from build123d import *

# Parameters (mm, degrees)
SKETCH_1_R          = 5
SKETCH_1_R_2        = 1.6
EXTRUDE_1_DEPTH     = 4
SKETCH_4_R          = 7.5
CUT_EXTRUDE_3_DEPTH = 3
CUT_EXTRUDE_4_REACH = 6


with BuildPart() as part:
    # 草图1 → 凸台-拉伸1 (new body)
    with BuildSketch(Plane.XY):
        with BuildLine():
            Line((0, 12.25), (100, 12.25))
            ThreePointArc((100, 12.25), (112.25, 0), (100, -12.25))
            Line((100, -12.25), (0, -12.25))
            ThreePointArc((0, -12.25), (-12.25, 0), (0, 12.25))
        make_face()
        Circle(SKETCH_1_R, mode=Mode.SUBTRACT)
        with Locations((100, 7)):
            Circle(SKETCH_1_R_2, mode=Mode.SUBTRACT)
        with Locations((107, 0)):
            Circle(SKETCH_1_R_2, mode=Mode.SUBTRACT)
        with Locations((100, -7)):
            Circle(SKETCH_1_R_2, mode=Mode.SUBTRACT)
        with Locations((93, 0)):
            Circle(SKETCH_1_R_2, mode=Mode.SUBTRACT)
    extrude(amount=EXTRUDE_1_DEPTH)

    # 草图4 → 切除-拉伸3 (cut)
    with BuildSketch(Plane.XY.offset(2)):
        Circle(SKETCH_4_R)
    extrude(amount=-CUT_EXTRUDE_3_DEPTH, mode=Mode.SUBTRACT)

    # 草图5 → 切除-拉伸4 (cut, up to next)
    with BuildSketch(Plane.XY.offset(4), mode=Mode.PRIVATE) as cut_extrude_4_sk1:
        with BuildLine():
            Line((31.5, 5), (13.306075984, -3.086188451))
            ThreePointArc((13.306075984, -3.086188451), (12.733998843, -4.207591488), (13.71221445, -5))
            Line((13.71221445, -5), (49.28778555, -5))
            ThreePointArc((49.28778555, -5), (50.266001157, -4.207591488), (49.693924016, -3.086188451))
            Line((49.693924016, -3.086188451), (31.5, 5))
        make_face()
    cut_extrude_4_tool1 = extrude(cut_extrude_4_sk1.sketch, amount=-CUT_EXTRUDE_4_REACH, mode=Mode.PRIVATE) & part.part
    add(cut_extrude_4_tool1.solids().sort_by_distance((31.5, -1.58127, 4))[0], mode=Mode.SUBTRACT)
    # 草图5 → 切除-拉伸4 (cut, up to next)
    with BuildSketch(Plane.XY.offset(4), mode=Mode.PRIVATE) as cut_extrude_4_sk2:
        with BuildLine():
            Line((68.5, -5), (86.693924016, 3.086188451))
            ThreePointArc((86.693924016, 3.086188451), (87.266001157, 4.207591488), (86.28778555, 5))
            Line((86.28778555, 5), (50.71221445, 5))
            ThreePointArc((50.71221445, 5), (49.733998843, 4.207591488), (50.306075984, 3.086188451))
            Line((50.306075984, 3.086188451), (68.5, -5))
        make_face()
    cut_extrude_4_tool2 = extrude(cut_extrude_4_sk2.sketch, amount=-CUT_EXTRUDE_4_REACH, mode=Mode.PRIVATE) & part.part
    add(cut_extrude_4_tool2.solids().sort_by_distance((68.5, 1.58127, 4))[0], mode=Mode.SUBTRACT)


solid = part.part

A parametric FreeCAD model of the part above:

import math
import FreeCAD as App
import Part
import Sketcher
from FreeCAD import Vector

doc = App.newDocument("Part")
params = doc.addObject("Spreadsheet::Sheet", "Params")
for row, (alias, value) in enumerate([
    ("sketch1_diameter", "10 mm"),
    ("sketch1_diameter2", "3.2 mm"),
    ("sketch1_width", "100 mm"),
    ("sketch1_radius", "12.25 mm"),
    ("pad1_length", "4 mm"),
    ("sketch2_diameter", "15 mm"),
    ("pocket1_length", "3 mm"),
    ("sketch3_radius", "1 mm"),
    ("sketch4_radius", "1 mm"),
], start=1):
    params.set(f"A{row}", alias)
    params.set(f"B{row}", "=" + value)
    params.setAlias(f"B{row}", alias)

body = doc.addObject("PartDesign::Body", "Body")

sketch1 = doc.addObject("Sketcher::SketchObject", "Sketch")
body.addObject(sketch1)
sketch1.AttachmentSupport = (doc.XY_Plane, [""])
sketch1.MapMode = "FlatFace"
sketch1.addGeometry(Part.LineSegment(Vector(100, 12.25, 0), Vector(0, 12.25, 0)), False)
sketch1.addGeometry(Part.ArcOfCircle(Part.Circle(Vector(0, 0, 0), Vector(0, 0, 1), 12.25), math.radians(90), math.radians(270)), False)
sketch1.addGeometry(Part.LineSegment(Vector(0, -12.25, 0), Vector(100, -12.25, 0)), False)
sketch1.addGeometry(Part.ArcOfCircle(Part.Circle(Vector(100, 0, 0), Vector(0, 0, 1), 12.25), math.radians(-90), math.radians(90)), False)
sketch1.addGeometry(Part.Circle(Vector(100, -7, 0), Vector(0, 0, 1), 1.6), False)
sketch1.addGeometry(Part.Circle(Vector(107, 0, 0), Vector(0, 0, 1), 1.6), False)
sketch1.addGeometry(Part.Circle(Vector(93, 0, 0), Vector(0, 0, 1), 1.6), False)
sketch1.addGeometry(Part.Circle(Vector(100, 7, 0), Vector(0, 0, 1), 1.6), False)
sketch1.addGeometry(Part.Circle(Vector(0, 0, 0), Vector(0, 0, 1), 5), False)
sketch1.addConstraint(Sketcher.Constraint("Tangent", 0, 2, 1, 1))
sketch1.addConstraint(Sketcher.Constraint("Tangent", 1, 2, 2, 1))
sketch1.addConstraint(Sketcher.Constraint("Tangent", 2, 2, 3, 1))
sketch1.addConstraint(Sketcher.Constraint("Tangent", 3, 2, 0, 1))
sketch1.addConstraint(Sketcher.Constraint("Horizontal", 0))
sketch1.addConstraint(Sketcher.Constraint("Horizontal", 2))
sketch1.addConstraint(Sketcher.Constraint("Coincident", 1, 3, -1, 1))
sketch1.addConstraint(Sketcher.Constraint("Coincident", 8, 3, -1, 1))
sketch1.addConstraint(Sketcher.Constraint("Equal", 4, 5))
sketch1.addConstraint(Sketcher.Constraint("Equal", 5, 6))
sketch1.addConstraint(Sketcher.Constraint("Equal", 6, 7))
sketch1.addConstraint(Sketcher.Constraint("Symmetric", 4, 3, 7, 3, -1))
sketch1.addConstraint(Sketcher.Constraint("PointOnObject", 5, 3, -1))
sketch1.addConstraint(Sketcher.Constraint("PointOnObject", 6, 3, -1))
sketch1.addConstraint(Sketcher.Constraint("Vertical", 3, 3, 4, 3))
sketch1.addConstraint(Sketcher.Constraint("Diameter", 8, 10.0))
sketch1.addConstraint(Sketcher.Constraint("Diameter", 4, 3.2))
sketch1.addConstraint(Sketcher.Constraint("DistanceX", 0, 2, 0, 1, 100.0))
sketch1.addConstraint(Sketcher.Constraint("Radius", 1, 12.25))
sketch1.addConstraint(Sketcher.Constraint("DistanceY", 4, 3, -1, 1, 7.0))
sketch1.addConstraint(Sketcher.Constraint("DistanceX", -1, 1, 5, 3, 107.0))
sketch1.addConstraint(Sketcher.Constraint("DistanceX", -1, 1, 6, 3, 93.0))
sketch1.setExpression("Constraints[15]", "Params.sketch1_diameter")
sketch1.setExpression("Constraints[16]", "Params.sketch1_diameter2")
sketch1.setExpression("Constraints[17]", "Params.sketch1_width")
sketch1.setExpression("Constraints[18]", "Params.sketch1_radius")
pad1 = doc.addObject("PartDesign::Pad", "Pad")
body.addObject(pad1)
pad1.Profile = sketch1
pad1.setExpression("Length", "Params.pad1_length")

sketch2 = doc.addObject("Sketcher::SketchObject", "Sketch001")
body.addObject(sketch2)
sketch2.AttachmentSupport = (doc.XY_Plane, [""])
sketch2.MapMode = "FlatFace"
sketch2.AttachmentOffset = App.Placement(Vector(0, 0, 2), App.Rotation())
sketch2.addGeometry(Part.Circle(Vector(0, 0, 0), Vector(0, 0, 1), 7.5), False)
sketch2.addConstraint(Sketcher.Constraint("Coincident", 0, 3, -1, 1))
sketch2.addConstraint(Sketcher.Constraint("Diameter", 0, 15.0))
sketch2.setExpression("Constraints[1]", "Params.sketch2_diameter")
pocket1 = doc.addObject("PartDesign::Pocket", "Pocket")
body.addObject(pocket1)
pocket1.Profile = sketch2
pocket1.setExpression("Length", "Params.pocket1_length")

sketch3 = doc.addObject("Sketcher::SketchObject", "Sketch002")
body.addObject(sketch3)
sketch3.AttachmentSupport = (doc.XY_Plane, [""])
sketch3.MapMode = "FlatFace"
sketch3.AttachmentOffset = App.Placement(Vector(0, 0, 4), App.Rotation())
sketch3.addGeometry(Part.LineSegment(Vector(31.5, 5, 0), Vector(13.306076, -3.086188, 0)), False)
sketch3.addGeometry(Part.ArcOfCircle(Part.Circle(Vector(13.712214, -4, 0), Vector(0, 0, 1), 1), math.radians(113.962489), math.radians(270)), False)
sketch3.addGeometry(Part.LineSegment(Vector(13.712214, -5, 0), Vector(49.287786, -5, 0)), False)
sketch3.addGeometry(Part.ArcOfCircle(Part.Circle(Vector(49.287786, -4, 0), Vector(0, 0, 1), 1), math.radians(-90), math.radians(66.037511)), False)
sketch3.addGeometry(Part.LineSegment(Vector(49.693924, -3.086188, 0), Vector(31.5, 5, 0)), False)
sketch3.addConstraint(Sketcher.Constraint("Tangent", 0, 2, 1, 1))
sketch3.addConstraint(Sketcher.Constraint("Tangent", 1, 2, 2, 1))
sketch3.addConstraint(Sketcher.Constraint("Tangent", 2, 2, 3, 1))
sketch3.addConstraint(Sketcher.Constraint("Tangent", 3, 2, 4, 1))
sketch3.addConstraint(Sketcher.Constraint("Coincident", 4, 2, 0, 1))
sketch3.addConstraint(Sketcher.Constraint("Horizontal", 2))
sketch3.addConstraint(Sketcher.Constraint("Equal", 1, 3))
sketch3.addConstraint(Sketcher.Constraint("Horizontal", 0, 2, 3, 2))
sketch3.addConstraint(Sketcher.Constraint("Radius", 1, 1.0))
sketch3.addConstraint(Sketcher.Constraint("DistanceY", 1, 3, -1, 1, 4.0))
sketch3.addConstraint(Sketcher.Constraint("DistanceY", -1, 1, 4, 2, 5.0))
sketch3.addConstraint(Sketcher.Constraint("DistanceX", -1, 1, 4, 2, 31.5))
sketch3.addConstraint(Sketcher.Constraint("DistanceX", 2, 1, 2, 2, 35.575571))
sketch3.setExpression("Constraints[8]", "Params.sketch3_radius")
pocket2 = doc.addObject("PartDesign::Pocket", "Pocket001")
body.addObject(pocket2)
pocket2.Profile = sketch3
pocket2.Type = "UpToFirst"

sketch4 = doc.addObject("Sketcher::SketchObject", "Sketch003")
body.addObject(sketch4)
sketch4.AttachmentSupport = (doc.XY_Plane, [""])
sketch4.MapMode = "FlatFace"
sketch4.AttachmentOffset = App.Placement(Vector(0, 0, 4), App.Rotation())
sketch4.addGeometry(Part.LineSegment(Vector(68.5, -5, 0), Vector(86.693924, 3.086188, 0)), False)
sketch4.addGeometry(Part.ArcOfCircle(Part.Circle(Vector(86.287786, 4, 0), Vector(0, 0, 1), 1), math.radians(-66.037511), math.radians(90)), False)
sketch4.addGeometry(Part.LineSegment(Vector(86.287786, 5, 0), Vector(50.712214, 5, 0)), False)
sketch4.addGeometry(Part.ArcOfCircle(Part.Circle(Vector(50.712214, 4, 0), Vector(0, 0, 1), 1), math.radians(90), math.radians(246.037511)), False)
sketch4.addGeometry(Part.LineSegment(Vector(50.306076, 3.086188, 0), Vector(68.5, -5, 0)), False)
sketch4.addConstraint(Sketcher.Constraint("Tangent", 0, 2, 1, 1))
sketch4.addConstraint(Sketcher.Constraint("Tangent", 1, 2, 2, 1))
sketch4.addConstraint(Sketcher.Constraint("Tangent", 2, 2, 3, 1))
sketch4.addConstraint(Sketcher.Constraint("Tangent", 3, 2, 4, 1))
sketch4.addConstraint(Sketcher.Constraint("Coincident", 4, 2, 0, 1))
sketch4.addConstraint(Sketcher.Constraint("Horizontal", 2))
sketch4.addConstraint(Sketcher.Constraint("Equal", 1, 3))
sketch4.addConstraint(Sketcher.Constraint("Horizontal", 0, 2, 3, 2))
sketch4.addConstraint(Sketcher.Constraint("Radius", 1, 1.0))
sketch4.addConstraint(Sketcher.Constraint("DistanceY", -1, 1, 1, 3, 4.0))
sketch4.addConstraint(Sketcher.Constraint("DistanceY", 4, 2, -1, 1, 5.0))
sketch4.addConstraint(Sketcher.Constraint("DistanceX", -1, 1, 4, 2, 68.5))
sketch4.addConstraint(Sketcher.Constraint("DistanceX", 2, 2, 2, 1, 35.575571))
sketch4.setExpression("Constraints[8]", "Params.sketch4_radius")
pocket3 = doc.addObject("PartDesign::Pocket", "Pocket002")
body.addObject(pocket3)
pocket3.Profile = sketch4
pocket3.Type = "UpToFirst"

doc.recompute()
